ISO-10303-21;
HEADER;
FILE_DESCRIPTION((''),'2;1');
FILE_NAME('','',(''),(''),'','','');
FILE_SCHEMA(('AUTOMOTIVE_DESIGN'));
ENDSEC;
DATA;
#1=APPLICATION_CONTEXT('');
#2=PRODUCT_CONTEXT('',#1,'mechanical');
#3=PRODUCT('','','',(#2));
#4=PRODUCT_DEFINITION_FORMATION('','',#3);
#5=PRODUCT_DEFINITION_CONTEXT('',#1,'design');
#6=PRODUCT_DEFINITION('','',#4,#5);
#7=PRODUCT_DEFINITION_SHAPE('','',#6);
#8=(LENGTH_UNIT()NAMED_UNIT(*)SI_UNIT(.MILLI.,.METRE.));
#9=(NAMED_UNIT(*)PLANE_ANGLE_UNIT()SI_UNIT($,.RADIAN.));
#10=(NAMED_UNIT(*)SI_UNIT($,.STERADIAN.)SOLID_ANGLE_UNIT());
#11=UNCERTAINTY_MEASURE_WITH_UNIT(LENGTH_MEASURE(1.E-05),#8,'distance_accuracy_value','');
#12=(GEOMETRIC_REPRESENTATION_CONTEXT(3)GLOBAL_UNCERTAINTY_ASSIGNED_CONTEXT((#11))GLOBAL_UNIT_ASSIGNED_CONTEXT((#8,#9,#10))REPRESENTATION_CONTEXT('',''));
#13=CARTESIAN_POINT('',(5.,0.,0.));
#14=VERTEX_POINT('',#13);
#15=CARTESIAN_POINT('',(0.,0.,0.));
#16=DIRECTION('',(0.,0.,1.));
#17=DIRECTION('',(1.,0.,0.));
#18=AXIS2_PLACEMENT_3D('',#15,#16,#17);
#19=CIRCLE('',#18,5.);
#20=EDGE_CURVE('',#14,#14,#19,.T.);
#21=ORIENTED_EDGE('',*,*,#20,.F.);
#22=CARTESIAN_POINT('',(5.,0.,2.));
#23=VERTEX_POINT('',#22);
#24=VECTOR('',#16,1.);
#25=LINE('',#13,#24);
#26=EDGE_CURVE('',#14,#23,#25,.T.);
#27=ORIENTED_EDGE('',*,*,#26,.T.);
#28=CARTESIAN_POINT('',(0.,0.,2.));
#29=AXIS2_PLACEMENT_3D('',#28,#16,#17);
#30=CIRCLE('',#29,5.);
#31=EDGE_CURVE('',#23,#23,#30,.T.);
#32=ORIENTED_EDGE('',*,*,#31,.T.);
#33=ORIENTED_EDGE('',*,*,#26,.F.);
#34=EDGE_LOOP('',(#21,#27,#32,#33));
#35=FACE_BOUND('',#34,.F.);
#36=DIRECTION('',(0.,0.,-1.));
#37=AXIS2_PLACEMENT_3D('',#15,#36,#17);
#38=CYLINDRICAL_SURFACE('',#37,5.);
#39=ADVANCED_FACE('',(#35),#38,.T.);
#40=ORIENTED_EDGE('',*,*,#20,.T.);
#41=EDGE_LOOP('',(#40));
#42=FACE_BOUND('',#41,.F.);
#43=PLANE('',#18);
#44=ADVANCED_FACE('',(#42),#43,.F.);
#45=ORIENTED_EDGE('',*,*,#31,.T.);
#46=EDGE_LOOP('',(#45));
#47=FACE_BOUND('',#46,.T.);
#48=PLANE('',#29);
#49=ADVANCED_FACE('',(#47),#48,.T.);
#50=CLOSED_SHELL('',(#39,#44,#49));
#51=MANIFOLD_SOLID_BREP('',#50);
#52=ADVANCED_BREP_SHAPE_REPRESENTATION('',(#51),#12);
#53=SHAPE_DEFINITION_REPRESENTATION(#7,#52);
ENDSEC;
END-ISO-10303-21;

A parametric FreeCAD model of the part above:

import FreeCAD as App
import Part
import Sketcher

V = App.Vector
Q = App.Units.Quantity

doc = App.newDocument("Part")
body = doc.addObject("PartDesign::Body", "Body")

# Sketch on XY plane
sketch1 = doc.addObject("Sketcher::SketchObject", "Sketch")
body.addObject(sketch1)
sketch1.AttachmentSupport = (doc.XY_Plane, [""])
sketch1.MapMode = "FlatFace"
sketch1.addGeometry(Part.Circle(V(0, 0, 0), V(0, 0, 1), 5), False)
sketch1.addConstraint([
    Sketcher.Constraint("Coincident", 0, 3, -1, 1),
    Sketcher.Constraint("Diameter", 0, Q("10 mm")),
])
pad1 = doc.addObject("PartDesign::Pad", "Pad")
body.addObject(pad1)
pad1.Profile = sketch1
pad1.Length = 2

doc.recompute()
